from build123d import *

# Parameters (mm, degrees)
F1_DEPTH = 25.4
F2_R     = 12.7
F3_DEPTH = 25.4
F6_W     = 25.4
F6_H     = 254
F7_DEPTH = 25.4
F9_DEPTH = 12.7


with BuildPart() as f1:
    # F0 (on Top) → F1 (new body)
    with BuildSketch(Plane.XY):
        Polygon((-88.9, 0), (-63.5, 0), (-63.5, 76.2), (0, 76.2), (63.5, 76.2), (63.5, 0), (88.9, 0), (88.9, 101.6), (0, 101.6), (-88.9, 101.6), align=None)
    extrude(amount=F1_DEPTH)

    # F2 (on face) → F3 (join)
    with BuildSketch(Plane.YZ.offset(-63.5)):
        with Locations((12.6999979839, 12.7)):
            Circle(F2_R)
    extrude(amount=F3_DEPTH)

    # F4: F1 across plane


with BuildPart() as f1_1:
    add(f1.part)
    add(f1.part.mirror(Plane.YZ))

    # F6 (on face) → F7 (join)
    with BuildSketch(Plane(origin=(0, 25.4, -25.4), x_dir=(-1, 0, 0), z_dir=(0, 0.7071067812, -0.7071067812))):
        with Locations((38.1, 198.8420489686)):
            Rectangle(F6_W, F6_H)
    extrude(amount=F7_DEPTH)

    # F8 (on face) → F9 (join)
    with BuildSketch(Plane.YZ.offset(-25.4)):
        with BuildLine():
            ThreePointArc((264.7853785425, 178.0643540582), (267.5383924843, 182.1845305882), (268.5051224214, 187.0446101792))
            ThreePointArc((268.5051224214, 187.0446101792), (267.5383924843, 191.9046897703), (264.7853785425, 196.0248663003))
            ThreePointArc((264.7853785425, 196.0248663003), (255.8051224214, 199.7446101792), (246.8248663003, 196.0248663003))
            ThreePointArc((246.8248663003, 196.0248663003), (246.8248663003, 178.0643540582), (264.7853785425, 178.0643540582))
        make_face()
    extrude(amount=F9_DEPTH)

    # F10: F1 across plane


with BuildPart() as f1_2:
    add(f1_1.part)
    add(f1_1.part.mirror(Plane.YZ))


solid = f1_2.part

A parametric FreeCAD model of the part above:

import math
import FreeCAD as App
import Part
import Sketcher
Q = App.Units.Quantity

doc = App.newDocument("Part")
params = doc.addObject("Spreadsheet::Sheet", "Params")
for row, (alias, value) in enumerate([
    ("sketch1_width", "1 in"),
    ("sketch1_width2", "5 in"),
    ("sketch1_height", "3 in"),
    ("sketch1_height2", "4 in"),
    ("pad1_length", "1 in"),
    ("sketch2_diameter", "1 in"),
    ("pad2_length", "1 in"),
    ("sketch3_width", "1 in"),
    ("sketch3_height", "10 in"),
    ("pad3_length", "1 in"),
    ("sketch4_radius", "0.5 in"),
    ("pad4_length", "0.5 in"),
], start=1):
    params.set(f"A{row}", alias)
    params.set(f"B{row}", "=" + value)
    params.setAlias(f"B{row}", alias)

body = doc.addObject("PartDesign::Body", "Body")

# Sketch on XY plane
sketch1 = body.newObject("Sketcher::SketchObject", "Sketch")
sketch1.AttachmentSupport = (doc.getObject("XY_Plane"), [""])
sketch1.MapMode = "FlatFace"
sketch1.addGeometry(Part.LineSegment(App.Vector(-89, 0, 0), App.Vector(-64, 0, 0)), False)
sketch1.addGeometry(Part.LineSegment(App.Vector(-64, 0, 0), App.Vector(-64, 76, 0)), False)
sketch1.addGeometry(Part.LineSegment(App.Vector(-64, 76, 0), App.Vector(64, 76, 0)), False)
sketch1.addGeometry(Part.LineSegment(App.Vector(64, 76, 0), App.Vector(64, 0, 0)), False)
sketch1.addGeometry(Part.LineSegment(App.Vector(64, 0, 0), App.Vector(89, 0, 0)), False)
sketch1.addGeometry(Part.LineSegment(App.Vector(89, 0, 0), App.Vector(89, 102, 0)), False)
sketch1.addGeometry(Part.LineSegment(App.Vector(89, 102, 0), App.Vector(-89, 102, 0)), False)
sketch1.addGeometry(Part.LineSegment(App.Vector(-89, 102, 0), App.Vector(-89, 0, 0)), False)
sketch1.addConstraint(Sketcher.Constraint("Coincident", 0, 2, 1, 1))
sketch1.addConstraint(Sketcher.Constraint("Coincident", 1, 2, 2, 1))
sketch1.addConstraint(Sketcher.Constraint("Coincident", 2, 2, 3, 1))
sketch1.addConstraint(Sketcher.Constraint("Coincident", 3, 2, 4, 1))
sketch1.addConstraint(Sketcher.Constraint("Coincident", 4, 2, 5, 1))
sketch1.addConstraint(Sketcher.Constraint("Coincident", 5, 2, 6, 1))
sketch1.addConstraint(Sketcher.Constraint("Coincident", 6, 2, 7, 1))
sketch1.addConstraint(Sketcher.Constraint("Coincident", 7, 2, 0, 1))
sketch1.addConstraint(Sketcher.Constraint("Horizontal", 0))
sketch1.addConstraint(Sketcher.Constraint("Vertical", 1))
sketch1.addConstraint(Sketcher.Constraint("Horizontal", 2))
sketch1.addConstraint(Sketcher.Constraint("Vertical", 3))
sketch1.addConstraint(Sketcher.Constraint("Horizontal", 4))
sketch1.addConstraint(Sketcher.Constraint("Vertical", 5))
sketch1.addConstraint(Sketcher.Constraint("Horizontal", 6))
sketch1.addConstraint(Sketcher.Constraint("Vertical", 7))
sketch1.addConstraint(Sketcher.Constraint("Symmetric", 0, 2, 3, 2, -1, 1))
sketch1.addConstraint(Sketcher.Constraint("Symmetric", 4, 2, 7, 2, -2))
sketch1.addConstraint(Sketcher.Constraint("DistanceX", 0, 1, 0, 2, Q("1 in")))
sketch1.addConstraint(Sketcher.Constraint("DistanceX", 2, 1, 2, 2, Q("5 in")))
sketch1.addConstraint(Sketcher.Constraint("DistanceY", 1, 1, 1, 2, Q("3 in")))
sketch1.addConstraint(Sketcher.Constraint("DistanceY", 5, 1, 5, 2, Q("4 in")))
sketch1.setExpression("Constraints[18]", "Params.sketch1_width")
sketch1.setExpression("Constraints[19]", "Params.sketch1_width2")
sketch1.setExpression("Constraints[20]", "Params.sketch1_height")
sketch1.setExpression("Constraints[21]", "Params.sketch1_height2")
pad1 = body.newObject("PartDesign::Pad", "Pad")
pad1.Profile = sketch1
pad1.setExpression("Length", "Params.pad1_length")

# Sketch on YZ plane
sketch2 = body.newObject("Sketcher::SketchObject", "Sketch001")
sketch2.AttachmentSupport = (doc.getObject("YZ_Plane"), [""])
sketch2.MapMode = "FlatFace"
sketch2.AttachmentOffset = App.Placement(App.Vector(0, 0, -2.5 * 25.4), App.Rotation())
sketch2.addGeometry(Part.Circle(App.Vector(13, 13, 0), App.Vector(0, 0, 1), 13), False)
sketch2.addConstraint(Sketcher.Constraint("Diameter", 0, Q("1 in")))
sketch2.addConstraint(Sketcher.Constraint("DistanceX", -1, 1, 0, 3, Q("0.4999999 in")))
sketch2.addConstraint(Sketcher.Constraint("DistanceY", -1, 1, 0, 3, Q("0.5 in")))
sketch2.setExpression("Constraints[0]", "Params.sketch2_diameter")
pad2 = body.newObject("PartDesign::Pad", "Pad001")
pad2.Profile = sketch2
pad2.setExpression("Length", "Params.pad2_length")
body2 = doc.addObject("PartDesign::Body", "Body001")
doc.recompute()

body2.BaseFeature = body
doc.recompute()

mirroring = doc.addObject("Part::Mirroring", "Mirroring")
mirroring.Source = body
mirroring.Base = App.Vector(0, 0, 0)
mirroring.Normal = App.Vector(1, 0, 0)
body3 = doc.addObject("PartDesign::Body", "Body002")
body3.BaseFeature = mirroring
boolean = body2.newObject("PartDesign::Boolean", "Boolean")
boolean.Type = "Fuse"
boolean.addObjects([body3])
doc.recompute()

# Sketch on an angled plane
sketch3 = body2.newObject("Sketcher::SketchObject", "Sketch002")
sketch3.Placement = App.Placement(App.Vector(0, 25.4, -25.4), App.Rotation(App.Vector(-1, 0, 0), App.Vector(0, 0.707106781, 0.707106781), App.Vector(0, 0.707106781, -0.707106781), "ZXY"))
sketch3.addGeometry(Part.LineSegment(App.Vector(25, 326, 0), App.Vector(25, 72, 0)), False)
sketch3.addGeometry(Part.LineSegment(App.Vector(25, 72, 0), App.Vector(51, 72, 0)), False)
sketch3.addGeometry(Part.LineSegment(App.Vector(51, 72, 0), App.Vector(51, 326, 0)), False)
sketch3.addGeometry(Part.LineSegment(App.Vector(51, 326, 0), App.Vector(25, 326, 0)), False)
sketch3.addConstraint(Sketcher.Constraint("Coincident", 0, 2, 1, 1))
sketch3.addConstraint(Sketcher.Constraint("Coincident", 1, 2, 2, 1))
sketch3.addConstraint(Sketcher.Constraint("Coincident", 2, 2, 3, 1))
sketch3.addConstraint(Sketcher.Constraint("Coincident", 3, 2, 0, 1))
sketch3.addConstraint(Sketcher.Constraint("Vertical", 0))
sketch3.addConstraint(Sketcher.Constraint("Horizontal", 1))
sketch3.addConstraint(Sketcher.Constraint("Vertical", 2))
sketch3.addConstraint(Sketcher.Constraint("Horizontal", 3))
sketch3.addConstraint(Sketcher.Constraint("DistanceX", 1, 1, 1, 2, Q("1 in")))
sketch3.addConstraint(Sketcher.Constraint("DistanceY", 0, 2, 0, 1, Q("10 in")))
sketch3.addConstraint(Sketcher.Constraint("DistanceX", -1, 1, 0, 2, Q("1 in")))
sketch3.addConstraint(Sketcher.Constraint("DistanceY", -1, 1, 0, 2, 71.842049))
sketch3.setExpression("Constraints[8]", "Params.sketch3_width")
sketch3.setExpression("Constraints[9]", "Params.sketch3_height")
pad3 = body2.newObject("PartDesign::Pad", "Pad002")
pad3.Profile = sketch3
pad3.setExpression("Length", "Params.pad3_length")

# Sketch on YZ plane
sketch4 = body2.newObject("Sketcher::SketchObject", "Sketch003")
sketch4.AttachmentSupport = (doc.getObject("YZ_Plane001"), [""])
sketch4.MapMode = "FlatFace"
sketch4.AttachmentOffset = App.Placement(App.Vector(0, 0, -1 * 25.4), App.Rotation())
sketch4.addGeometry(Part.ArcOfCircle(Part.Circle(App.Vector(256, 187, 0), App.Vector(0, 0, 1), 13), math.radians(-45), math.radians(0)), False)
sketch4.addGeometry(Part.ArcOfCircle(Part.Circle(App.Vector(256, 187, 0), App.Vector(0, 0, 1), 13), math.radians(0), math.radians(45)), False)
sketch4.addGeometry(Part.ArcOfCircle(Part.Circle(App.Vector(256, 187, 0), App.Vector(0, 0, 1), 13), math.radians(45), math.radians(135)), False)
sketch4.addGeometry(Part.ArcOfCircle(Part.Circle(App.Vector(256, 187, 0), App.Vector(0, 0, 1), 13), math.radians(135), math.radians(315)), False)
sketch4.addConstraint(Sketcher.Constraint("Tangent", 0, 2, 1, 1))
sketch4.addConstraint(Sketcher.Constraint("Tangent", 1, 2, 2, 1))
sketch4.addConstraint(Sketcher.Constraint("Tangent", 2, 2, 3, 1))
sketch4.addConstraint(Sketcher.Constraint("Tangent", 3, 2, 0, 1))
sketch4.addConstraint(Sketcher.Constraint("Equal", 0, 1))
sketch4.addConstraint(Sketcher.Constraint("Horizontal", 3, 3, 0, 2))
sketch4.addConstraint(Sketcher.Constraint("Horizontal", 1, 2, 2, 2))
sketch4.addConstraint(Sketcher.Constraint("Vertical", 1, 2, 3, 2))
sketch4.addConstraint(Sketcher.Constraint("Radius", 0, Q("0.5 in")))
sketch4.addConstraint(Sketcher.Constraint("DistanceY", -1, 1, 0, 3, 187.04461))
sketch4.addConstraint(Sketcher.Constraint("DistanceX", -1, 1, 1, 2, 264.785379))
sketch4.addConstraint(Sketcher.Constraint("DistanceX", -1, 1, 0, 3, 255.805122))
sketch4.setExpression("Constraints[8]", "Params.sketch4_radius")
pad4 = body2.newObject("PartDesign::Pad", "Pad003")
pad4.Profile = sketch4
pad4.setExpression("Length", "Params.pad4_length")
body4 = doc.addObject("PartDesign::Body", "Body003")
doc.recompute()

body4.BaseFeature = body2
doc.recompute()

mirroring2 = doc.addObject("Part::Mirroring", "Mirroring001")
mirroring2.Source = body2
mirroring2.Base = App.Vector(0, 0, 0)
mirroring2.Normal = App.Vector(1, 0, 0)
body5 = doc.addObject("PartDesign::Body", "Body004")
body5.BaseFeature = mirroring2
boolean2 = body4.newObject("PartDesign::Boolean", "Boolean001")
boolean2.Type = "Fuse"
boolean2.addObjects([body5])
doc.recompute()
mirroring.Visibility = False
mirroring2.Visibility = False

doc.recompute()
